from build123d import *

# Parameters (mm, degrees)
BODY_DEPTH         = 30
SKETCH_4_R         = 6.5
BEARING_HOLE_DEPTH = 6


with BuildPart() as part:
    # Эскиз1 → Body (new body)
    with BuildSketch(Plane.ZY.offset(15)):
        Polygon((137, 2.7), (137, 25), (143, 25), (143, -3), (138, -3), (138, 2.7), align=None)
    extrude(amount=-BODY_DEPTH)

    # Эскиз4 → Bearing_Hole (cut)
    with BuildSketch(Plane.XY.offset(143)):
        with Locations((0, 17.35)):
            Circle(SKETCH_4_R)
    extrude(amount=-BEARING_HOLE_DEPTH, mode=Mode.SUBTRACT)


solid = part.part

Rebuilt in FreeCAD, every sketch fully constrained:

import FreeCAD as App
import Part
import Sketcher

V = App.Vector


def add_polygon(sketch, points):
    """Adds a closed chain of lines whose ends are joined by coincident constraints."""
    first, n = sketch.GeometryCount, len(points)
    for a, b in zip(points, points[1:] + points[:1]):
        sketch.addGeometry(Part.LineSegment(App.Vector(*a, 0), App.Vector(*b, 0)), False)
    for i in range(n):
        sketch.addConstraint(Sketcher.Constraint("Coincident", first + i, 2, first + (i + 1) % n, 1))

doc = App.newDocument("Part")
body = doc.addObject("PartDesign::Body", "Body")

sketch1 = body.newObject("Sketcher::SketchObject", "Sketch")
sketch1.AttachmentSupport = (doc.getObject("YZ_Plane"), [""])
sketch1.MapMode = "FlatFace"
sketch1.AttachmentOffset = App.Placement(V(0, 0, -15), App.Rotation())
add_polygon(sketch1, [(25, 137), (2.7, 137), (2.7, 138), (-3, 138), (-3, 143), (25, 143)])
sketch1.addConstraint(Sketcher.Constraint("Horizontal", 0))
sketch1.addConstraint(Sketcher.Constraint("Vertical", 1))
sketch1.addConstraint(Sketcher.Constraint("Horizontal", 2))
sketch1.addConstraint(Sketcher.Constraint("Vertical", 3))
sketch1.addConstraint(Sketcher.Constraint("Horizontal", 4))
sketch1.addConstraint(Sketcher.Constraint("Vertical", 5))
sketch1.addConstraint(Sketcher.Constraint("DistanceX", 4, 1, 4, 2, 28.0))
sketch1.addConstraint(Sketcher.Constraint("DistanceY", 1, 1, 1, 2, 1.0))
sketch1.addConstraint(Sketcher.Constraint("DistanceY", 3, 1, 3, 2, 5.0))
sketch1.addConstraint(Sketcher.Constraint("DistanceX", 0, 2, 0, 1, 22.3))
sketch1.addConstraint(Sketcher.Constraint("DistanceY", -1, 1, 0, 2, 137.0))
sketch1.addConstraint(Sketcher.Constraint("DistanceX", 2, 2, -1, 1, 3.0))
pad1 = body.newObject("PartDesign::Pad", "Pad")
pad1.Profile = sketch1
pad1.Length = 30

sketch2 = body.newObject("Sketcher::SketchObject", "Sketch001")
sketch2.AttachmentSupport = (doc.getObject("XY_Plane"), [""])
sketch2.MapMode = "FlatFace"
sketch2.AttachmentOffset = App.Placement(V(0, 0, 143), App.Rotation())
sketch2.addGeometry(Part.Circle(V(0, 17, 0), V(0, 0, 1), 6), False)
sketch2.addConstraint(Sketcher.Constraint("PointOnObject", 0, 3, -2))
sketch2.addConstraint(Sketcher.Constraint("Diameter", 0, 13.0))
sketch2.addConstraint(Sketcher.Constraint("DistanceY", -1, 1, 0, 3, 17.35))
pocket1 = body.newObject("PartDesign::Pocket", "Pocket")
pocket1.Profile = sketch2
pocket1.Length = 6

doc.recompute()
